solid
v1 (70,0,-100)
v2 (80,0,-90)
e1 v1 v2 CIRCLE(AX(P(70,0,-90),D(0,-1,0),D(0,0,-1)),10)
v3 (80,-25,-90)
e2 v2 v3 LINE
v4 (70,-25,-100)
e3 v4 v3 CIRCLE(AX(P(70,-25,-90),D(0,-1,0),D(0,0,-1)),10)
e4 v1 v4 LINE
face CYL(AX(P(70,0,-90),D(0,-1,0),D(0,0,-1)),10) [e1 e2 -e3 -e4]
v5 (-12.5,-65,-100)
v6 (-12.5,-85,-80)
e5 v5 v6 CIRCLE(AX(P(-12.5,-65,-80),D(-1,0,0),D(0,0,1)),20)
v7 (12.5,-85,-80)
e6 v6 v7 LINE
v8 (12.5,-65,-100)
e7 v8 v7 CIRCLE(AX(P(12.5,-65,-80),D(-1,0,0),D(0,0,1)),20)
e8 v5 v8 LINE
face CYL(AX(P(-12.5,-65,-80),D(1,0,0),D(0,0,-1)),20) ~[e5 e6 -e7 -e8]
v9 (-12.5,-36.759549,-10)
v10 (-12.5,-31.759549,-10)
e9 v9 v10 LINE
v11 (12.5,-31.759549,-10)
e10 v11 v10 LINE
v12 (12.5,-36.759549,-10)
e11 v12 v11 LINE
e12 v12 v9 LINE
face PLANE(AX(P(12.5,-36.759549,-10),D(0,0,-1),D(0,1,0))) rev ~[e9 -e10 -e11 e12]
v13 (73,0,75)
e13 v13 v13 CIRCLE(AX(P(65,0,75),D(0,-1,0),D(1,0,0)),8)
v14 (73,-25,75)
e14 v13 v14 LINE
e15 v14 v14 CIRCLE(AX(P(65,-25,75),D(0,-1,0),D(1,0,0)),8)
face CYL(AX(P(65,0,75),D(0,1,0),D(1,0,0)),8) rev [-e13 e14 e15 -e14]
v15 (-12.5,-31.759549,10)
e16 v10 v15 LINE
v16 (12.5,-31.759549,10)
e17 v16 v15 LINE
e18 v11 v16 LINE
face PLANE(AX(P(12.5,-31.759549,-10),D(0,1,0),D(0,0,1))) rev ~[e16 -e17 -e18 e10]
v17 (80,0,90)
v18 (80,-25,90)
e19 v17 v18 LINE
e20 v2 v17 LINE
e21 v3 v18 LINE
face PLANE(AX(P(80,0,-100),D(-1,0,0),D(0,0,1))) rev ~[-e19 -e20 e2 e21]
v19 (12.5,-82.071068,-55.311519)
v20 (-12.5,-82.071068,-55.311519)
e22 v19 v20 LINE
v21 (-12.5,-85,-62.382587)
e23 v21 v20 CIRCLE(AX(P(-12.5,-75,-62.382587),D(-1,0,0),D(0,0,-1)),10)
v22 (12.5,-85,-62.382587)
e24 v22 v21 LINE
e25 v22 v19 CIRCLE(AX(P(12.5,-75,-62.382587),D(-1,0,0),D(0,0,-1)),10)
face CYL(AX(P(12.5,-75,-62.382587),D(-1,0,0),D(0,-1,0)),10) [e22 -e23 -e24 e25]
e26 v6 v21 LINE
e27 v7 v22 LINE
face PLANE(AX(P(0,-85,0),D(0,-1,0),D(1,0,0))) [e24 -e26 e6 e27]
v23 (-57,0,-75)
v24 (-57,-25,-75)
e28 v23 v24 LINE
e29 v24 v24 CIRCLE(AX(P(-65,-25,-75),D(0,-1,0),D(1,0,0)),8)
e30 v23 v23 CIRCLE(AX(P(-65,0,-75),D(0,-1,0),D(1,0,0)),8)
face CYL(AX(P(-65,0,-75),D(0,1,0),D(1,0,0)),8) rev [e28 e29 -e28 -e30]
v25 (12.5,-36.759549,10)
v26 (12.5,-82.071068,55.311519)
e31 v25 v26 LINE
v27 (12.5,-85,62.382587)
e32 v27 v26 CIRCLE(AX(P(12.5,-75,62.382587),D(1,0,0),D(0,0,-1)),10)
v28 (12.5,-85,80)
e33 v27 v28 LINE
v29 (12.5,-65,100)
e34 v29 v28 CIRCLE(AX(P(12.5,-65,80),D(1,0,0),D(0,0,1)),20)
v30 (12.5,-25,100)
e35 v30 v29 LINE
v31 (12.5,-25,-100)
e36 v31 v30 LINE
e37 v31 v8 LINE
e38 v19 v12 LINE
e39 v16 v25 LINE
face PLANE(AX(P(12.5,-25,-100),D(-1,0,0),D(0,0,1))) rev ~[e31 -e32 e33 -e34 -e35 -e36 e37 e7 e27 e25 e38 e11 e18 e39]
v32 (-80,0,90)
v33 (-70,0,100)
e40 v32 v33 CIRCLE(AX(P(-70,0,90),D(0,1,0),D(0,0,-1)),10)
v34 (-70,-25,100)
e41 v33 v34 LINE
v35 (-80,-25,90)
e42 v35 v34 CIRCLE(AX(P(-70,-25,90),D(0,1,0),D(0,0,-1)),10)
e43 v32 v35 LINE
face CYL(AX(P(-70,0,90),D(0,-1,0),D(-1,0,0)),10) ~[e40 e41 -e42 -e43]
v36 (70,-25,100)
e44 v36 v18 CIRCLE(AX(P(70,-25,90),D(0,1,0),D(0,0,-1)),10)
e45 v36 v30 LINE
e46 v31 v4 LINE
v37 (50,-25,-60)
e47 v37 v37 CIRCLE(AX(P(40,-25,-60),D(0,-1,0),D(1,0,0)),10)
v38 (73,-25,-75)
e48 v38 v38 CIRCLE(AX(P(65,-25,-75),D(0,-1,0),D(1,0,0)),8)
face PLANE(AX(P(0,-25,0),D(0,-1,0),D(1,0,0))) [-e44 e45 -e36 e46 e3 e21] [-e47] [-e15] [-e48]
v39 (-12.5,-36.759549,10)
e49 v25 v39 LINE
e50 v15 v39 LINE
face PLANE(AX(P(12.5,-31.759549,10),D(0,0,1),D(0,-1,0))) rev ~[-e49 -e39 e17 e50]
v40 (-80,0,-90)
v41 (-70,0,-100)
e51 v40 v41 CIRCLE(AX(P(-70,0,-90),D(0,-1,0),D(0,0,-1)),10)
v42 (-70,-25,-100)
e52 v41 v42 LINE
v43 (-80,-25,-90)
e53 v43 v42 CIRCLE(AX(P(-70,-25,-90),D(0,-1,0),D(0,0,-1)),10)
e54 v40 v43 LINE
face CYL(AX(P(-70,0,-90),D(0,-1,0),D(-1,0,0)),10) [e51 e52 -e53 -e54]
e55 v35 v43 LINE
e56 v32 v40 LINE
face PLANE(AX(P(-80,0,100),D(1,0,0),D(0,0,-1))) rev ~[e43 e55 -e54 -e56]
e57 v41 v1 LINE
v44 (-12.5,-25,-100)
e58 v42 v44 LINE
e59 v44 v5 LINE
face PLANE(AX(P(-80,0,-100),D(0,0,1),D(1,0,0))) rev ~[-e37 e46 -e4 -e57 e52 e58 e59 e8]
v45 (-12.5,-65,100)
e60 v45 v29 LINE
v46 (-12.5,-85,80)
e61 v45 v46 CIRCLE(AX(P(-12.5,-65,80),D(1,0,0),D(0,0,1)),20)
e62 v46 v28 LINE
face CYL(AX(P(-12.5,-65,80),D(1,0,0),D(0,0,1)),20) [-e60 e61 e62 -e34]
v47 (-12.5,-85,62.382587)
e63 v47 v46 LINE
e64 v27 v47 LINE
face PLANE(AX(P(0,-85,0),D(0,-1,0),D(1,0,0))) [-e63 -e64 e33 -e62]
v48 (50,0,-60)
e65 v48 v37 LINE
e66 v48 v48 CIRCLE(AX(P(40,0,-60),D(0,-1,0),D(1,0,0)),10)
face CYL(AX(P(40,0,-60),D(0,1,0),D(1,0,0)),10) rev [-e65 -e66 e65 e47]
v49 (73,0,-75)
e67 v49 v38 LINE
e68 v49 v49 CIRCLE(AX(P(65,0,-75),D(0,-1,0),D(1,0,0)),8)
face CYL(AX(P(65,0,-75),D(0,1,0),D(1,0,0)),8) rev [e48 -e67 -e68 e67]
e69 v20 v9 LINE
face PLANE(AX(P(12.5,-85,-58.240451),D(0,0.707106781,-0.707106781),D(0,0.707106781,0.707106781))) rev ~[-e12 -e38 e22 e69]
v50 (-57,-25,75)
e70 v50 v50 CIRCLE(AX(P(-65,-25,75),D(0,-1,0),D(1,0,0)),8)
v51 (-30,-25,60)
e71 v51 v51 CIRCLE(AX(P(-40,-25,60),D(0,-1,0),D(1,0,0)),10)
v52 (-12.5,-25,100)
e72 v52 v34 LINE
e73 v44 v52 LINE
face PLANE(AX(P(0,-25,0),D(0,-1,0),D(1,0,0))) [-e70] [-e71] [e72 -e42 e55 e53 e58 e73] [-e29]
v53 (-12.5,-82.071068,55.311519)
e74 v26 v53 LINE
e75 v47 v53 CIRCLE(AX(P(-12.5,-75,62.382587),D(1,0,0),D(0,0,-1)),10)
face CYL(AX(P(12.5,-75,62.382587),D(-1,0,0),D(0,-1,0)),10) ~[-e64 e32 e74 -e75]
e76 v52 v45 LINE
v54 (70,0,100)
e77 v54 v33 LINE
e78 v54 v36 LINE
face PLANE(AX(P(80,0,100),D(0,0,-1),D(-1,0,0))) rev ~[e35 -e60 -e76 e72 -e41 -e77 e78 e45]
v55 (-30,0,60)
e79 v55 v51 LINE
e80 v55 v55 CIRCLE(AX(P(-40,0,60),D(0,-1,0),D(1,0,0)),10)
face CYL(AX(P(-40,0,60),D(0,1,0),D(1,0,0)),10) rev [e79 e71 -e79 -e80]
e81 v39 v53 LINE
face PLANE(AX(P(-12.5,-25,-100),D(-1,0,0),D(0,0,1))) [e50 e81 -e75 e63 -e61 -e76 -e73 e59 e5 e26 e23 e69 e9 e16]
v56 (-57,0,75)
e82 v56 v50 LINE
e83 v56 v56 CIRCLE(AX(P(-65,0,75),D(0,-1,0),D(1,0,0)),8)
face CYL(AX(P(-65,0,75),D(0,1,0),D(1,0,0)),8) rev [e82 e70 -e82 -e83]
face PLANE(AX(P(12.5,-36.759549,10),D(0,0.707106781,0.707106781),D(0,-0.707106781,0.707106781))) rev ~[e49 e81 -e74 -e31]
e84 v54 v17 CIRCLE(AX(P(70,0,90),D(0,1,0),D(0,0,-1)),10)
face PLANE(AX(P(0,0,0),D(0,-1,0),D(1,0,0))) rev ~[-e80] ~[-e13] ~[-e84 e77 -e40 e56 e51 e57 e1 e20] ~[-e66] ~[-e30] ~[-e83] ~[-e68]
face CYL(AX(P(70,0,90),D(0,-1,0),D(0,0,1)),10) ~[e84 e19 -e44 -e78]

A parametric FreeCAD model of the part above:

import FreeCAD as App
import Part
import Sketcher

V = App.Vector
Q = App.Units.Quantity


def edges_at(feature, points):
    """Names of the edges that pass closest to the given points."""
    edges = feature.Shape.Edges
    near = lambda p: min(range(len(edges)), key=lambda i: edges[i].distToShape(Part.Vertex(*p))[0])
    return sorted({f"Edge{near(p) + 1}" for p in points})

doc = App.newDocument("Part")
body = doc.addObject("PartDesign::Body", "Body")

sketch1 = body.newObject("Sketcher::SketchObject", "Sketch")
sketch1.AttachmentSupport = (doc.getObject("XZ_Plane"), [""])
sketch1.MapMode = "FlatFace"
sketch1.addGeometry(Part.LineSegment(V(-80, 100, 0), V(-80, -100, 0)), False)
sketch1.addGeometry(Part.LineSegment(V(-80, -100, 0), V(80, -100, 0)), False)
sketch1.addGeometry(Part.LineSegment(V(80, -100, 0), V(80, 100, 0)), False)
sketch1.addGeometry(Part.LineSegment(V(80, 100, 0), V(-80, 100, 0)), False)
sketch1.addGeometry(Part.Circle(V(-65, -75, 0), V(0, 0, 1), 8), False)
sketch1.addGeometry(Part.Circle(V(65, -75, 0), V(0, 0, 1), 8), False)
sketch1.addGeometry(Part.Circle(V(40, -60, 0), V(0, 0, 1), 10), False)
sketch1.addGeometry(Part.Circle(V(-40, 60, 0), V(0, 0, 1), 10), False)
sketch1.addGeometry(Part.Circle(V(-65, 75, 0), V(0, 0, 1), 8), False)
sketch1.addGeometry(Part.Circle(V(65, 75, 0), V(0, 0, 1), 8), False)
sketch1.addConstraint(Sketcher.Constraint("Coincident", 0, 2, 1, 1))
sketch1.addConstraint(Sketcher.Constraint("Coincident", 1, 2, 2, 1))
sketch1.addConstraint(Sketcher.Constraint("Coincident", 2, 2, 3, 1))
sketch1.addConstraint(Sketcher.Constraint("Coincident", 3, 2, 0, 1))
sketch1.addConstraint(Sketcher.Constraint("Vertical", 0))
sketch1.addConstraint(Sketcher.Constraint("Horizontal", 1))
sketch1.addConstraint(Sketcher.Constraint("Vertical", 2))
sketch1.addConstraint(Sketcher.Constraint("Horizontal", 3))
sketch1.addConstraint(Sketcher.Constraint("Equal", 4, 5))
sketch1.addConstraint(Sketcher.Constraint("Equal", 6, 7))
sketch1.addConstraint(Sketcher.Constraint("Equal", 5, 8))
sketch1.addConstraint(Sketcher.Constraint("Equal", 8, 9))
sketch1.addConstraint(Sketcher.Constraint("Symmetric", 6, 3, 7, 3, -1, 1))
sketch1.addConstraint(Sketcher.Constraint("Symmetric", 5, 3, 8, 3, -1, 1))
sketch1.addConstraint(Sketcher.Constraint("Symmetric", 4, 3, 9, 3, -1, 1))
sketch1.addConstraint(Sketcher.Constraint("Symmetric", 0, 2, 2, 2, -1, 1))
sketch1.addConstraint(Sketcher.Constraint("Symmetric", 4, 3, 5, 3, -2))
sketch1.addConstraint(Sketcher.Constraint("Diameter", 4, Q("16 mm")))
sketch1.addConstraint(Sketcher.Constraint("Diameter", 6, Q("20 mm")))
sketch1.addConstraint(Sketcher.Constraint("DistanceX", 1, 1, 1, 2, Q("160 mm")))
sketch1.addConstraint(Sketcher.Constraint("DistanceY", 0, 2, 0, 1, Q("200 mm")))
sketch1.addConstraint(Sketcher.Constraint("DistanceX", 4, 3, -1, 1, Q("65 mm")))
sketch1.addConstraint(Sketcher.Constraint("DistanceY", 4, 3, -1, 1, Q("75 mm")))
sketch1.addConstraint(Sketcher.Constraint("DistanceX", -1, 1, 6, 3, Q("40 mm")))
sketch1.addConstraint(Sketcher.Constraint("DistanceY", 6, 3, -1, 1, Q("60 mm")))
pad1 = body.newObject("PartDesign::Pad", "Pad")
pad1.Profile = sketch1
pad1.Length = 25

sketch2 = body.newObject("Sketcher::SketchObject", "Sketch001")
sketch2.AttachmentSupport = (doc.getObject("XZ_Plane"), [""])
sketch2.MapMode = "FlatFace"
sketch2.AttachmentOffset = App.Placement(V(0, 0, 25), App.Rotation())
sketch2.addGeometry(Part.LineSegment(V(-12, 100, 0), V(-12, -100, 0)), False)
sketch2.addGeometry(Part.LineSegment(V(-12, -100, 0), V(12, -100, 0)), False)
sketch2.addGeometry(Part.LineSegment(V(12, -100, 0), V(12, 100, 0)), False)
sketch2.addGeometry(Part.LineSegment(V(12, 100, 0), V(-12, 100, 0)), False)
sketch2.addConstraint(Sketcher.Constraint("Coincident", 0, 2, 1, 1))
sketch2.addConstraint(Sketcher.Constraint("Coincident", 1, 2, 2, 1))
sketch2.addConstraint(Sketcher.Constraint("Coincident", 2, 2, 3, 1))
sketch2.addConstraint(Sketcher.Constraint("Coincident", 3, 2, 0, 1))
sketch2.addConstraint(Sketcher.Constraint("Vertical", 0))
sketch2.addConstraint(Sketcher.Constraint("Horizontal", 1))
sketch2.addConstraint(Sketcher.Constraint("Vertical", 2))
sketch2.addConstraint(Sketcher.Constraint("Horizontal", 3))
sketch2.addConstraint(Sketcher.Constraint("Symmetric", 0, 2, 2, 2, -1, 1))
sketch2.addConstraint(Sketcher.Constraint("DistanceX", 1, 1, 1, 2, Q("25 mm")))
sketch2.addConstraint(Sketcher.Constraint("DistanceY", 0, 2, 0, 1, Q("200 mm")))
pad2 = body.newObject("PartDesign::Pad", "Pad001")
pad2.Profile = sketch2
pad2.Length = 60

sketch3 = body.newObject("Sketcher::SketchObject", "Sketch002")
sketch3.AttachmentSupport = (doc.getObject("YZ_Plane"), [""])
sketch3.MapMode = "FlatFace"
sketch3.AttachmentOffset = App.Placement(V(0, 0, 12.5), App.Rotation())
sketch3.addGeometry(Part.LineSegment(V(-37, 10, 0), V(-85, 58, 0)), False)
sketch3.addGeometry(Part.LineSegment(V(-85, 58, 0), V(-85, -58, 0)), False)
sketch3.addGeometry(Part.LineSegment(V(-85, -58, 0), V(-37, -10, 0)), False)
sketch3.addGeometry(Part.LineSegment(V(-37, -10, 0), V(-32, -10, 0)), False)
sketch3.addGeometry(Part.LineSegment(V(-32, -10, 0), V(-32, 10, 0)), False)
sketch3.addGeometry(Part.LineSegment(V(-32, 10, 0), V(-37, 10, 0)), False)
sketch3.addConstraint(Sketcher.Constraint("Coincident", 0, 2, 1, 1))
sketch3.addConstraint(Sketcher.Constraint("Coincident", 1, 2, 2, 1))
sketch3.addConstraint(Sketcher.Constraint("Coincident", 2, 2, 3, 1))
sketch3.addConstraint(Sketcher.Constraint("Coincident", 3, 2, 4, 1))
sketch3.addConstraint(Sketcher.Constraint("Coincident", 4, 2, 5, 1))
sketch3.addConstraint(Sketcher.Constraint("Coincident", 5, 2, 0, 1))
sketch3.addConstraint(Sketcher.Constraint("Vertical", 1))
sketch3.addConstraint(Sketcher.Constraint("Horizontal", 3))
sketch3.addConstraint(Sketcher.Constraint("Vertical", 4))
sketch3.addConstraint(Sketcher.Constraint("Horizontal", 5))
sketch3.addConstraint(Sketcher.Constraint("Symmetric", 2, 2, 5, 2, -1))
sketch3.addConstraint(Sketcher.Constraint("Perpendicular", 0, 2))
sketch3.addConstraint(Sketcher.Constraint("Equal", 0, 2))
sketch3.addConstraint(Sketcher.Constraint("DistanceX", 3, 1, 3, 2, Q("5 mm")))
sketch3.addConstraint(Sketcher.Constraint("DistanceY", 4, 1, 4, 2, Q("20 mm")))
sketch3.addConstraint(Sketcher.Constraint("DistanceX", 0, 2, -1, 1, Q("85 mm")))
sketch3.addConstraint(Sketcher.Constraint("DistanceY", 1, 2, 1, 1, Q("116.480902 mm")))
pocket1 = body.newObject("PartDesign::Pocket", "Pocket")
pocket1.Profile = sketch3
pocket1.Length = 25
doc.recompute()

fillet = body.newObject("PartDesign::Fillet", "Fillet")
fillet.Base = (pocket1, edges_at(pocket1, [
    (80, -12.5, 100),
    (-80, -12.5, 100),
    (-80, -12.5, -100),
    (80, -12.5, -100),
]))
fillet.Radius = 10
doc.recompute()

fillet2 = body.newObject("PartDesign::Fillet", "Fillet001")
fillet2.Base = (fillet, edges_at(fillet, [(0, -85, -100), (0, -85, 100)]))
fillet2.Radius = 20
doc.recompute()

fillet3 = body.newObject("PartDesign::Fillet", "Fillet002")
fillet3.Base = (fillet2, edges_at(fillet2, [(0, -85, -58.24), (0, -85, 58.24)]))
fillet3.Radius = 10

doc.recompute()
